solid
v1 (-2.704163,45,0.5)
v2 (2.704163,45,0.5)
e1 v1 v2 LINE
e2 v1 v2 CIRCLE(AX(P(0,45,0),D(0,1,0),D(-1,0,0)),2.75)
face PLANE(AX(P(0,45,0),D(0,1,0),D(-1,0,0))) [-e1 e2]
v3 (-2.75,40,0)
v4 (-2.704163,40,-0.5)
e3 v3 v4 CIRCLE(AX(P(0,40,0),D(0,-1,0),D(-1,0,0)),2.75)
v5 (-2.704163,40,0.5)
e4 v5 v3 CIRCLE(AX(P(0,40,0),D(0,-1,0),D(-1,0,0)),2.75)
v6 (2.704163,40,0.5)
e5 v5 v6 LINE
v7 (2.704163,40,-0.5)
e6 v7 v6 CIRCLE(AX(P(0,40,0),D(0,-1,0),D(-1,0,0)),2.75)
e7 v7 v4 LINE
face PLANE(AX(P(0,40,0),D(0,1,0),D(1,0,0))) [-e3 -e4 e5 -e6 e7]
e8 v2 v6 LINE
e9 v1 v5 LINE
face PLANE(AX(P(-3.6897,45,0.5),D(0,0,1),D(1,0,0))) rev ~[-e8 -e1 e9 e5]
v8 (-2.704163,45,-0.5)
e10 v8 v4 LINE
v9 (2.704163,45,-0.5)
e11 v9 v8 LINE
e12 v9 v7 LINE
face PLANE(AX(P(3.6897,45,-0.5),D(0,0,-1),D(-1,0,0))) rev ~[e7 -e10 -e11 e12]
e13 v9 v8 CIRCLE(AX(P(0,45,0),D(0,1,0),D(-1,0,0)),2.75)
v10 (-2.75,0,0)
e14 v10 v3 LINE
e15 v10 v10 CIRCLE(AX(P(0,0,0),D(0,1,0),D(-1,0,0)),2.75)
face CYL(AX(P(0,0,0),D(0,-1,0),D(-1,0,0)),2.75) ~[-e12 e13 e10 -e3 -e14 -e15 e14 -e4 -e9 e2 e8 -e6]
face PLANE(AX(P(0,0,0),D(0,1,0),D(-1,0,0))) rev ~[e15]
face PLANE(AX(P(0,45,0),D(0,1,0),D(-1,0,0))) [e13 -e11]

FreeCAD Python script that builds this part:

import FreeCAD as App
import Part
import Sketcher
Q = App.Units.Quantity


def add_polygon(sketch, points):
    """Adds a closed chain of lines whose ends are joined by coincident constraints."""
    first, n = sketch.GeometryCount, len(points)
    for a, b in zip(points, points[1:] + points[:1]):
        sketch.addGeometry(Part.LineSegment(App.Vector(*a, 0), App.Vector(*b, 0)), False)
    for i in range(n):
        sketch.addConstraint(Sketcher.Constraint("Coincident", first + i, 2, first + (i + 1) % n, 1))

doc = App.newDocument("Part")
params = doc.addObject("Spreadsheet::Sheet", "Params")
for row, (alias, value) in enumerate([
    ("sketch1_diameter", "5.5 mm"),
    ("pad1_length", "45 mm"),
    ("sketch2_height", "1 mm"),
    ("pocket1_length", "5 mm"),
], start=1):
    params.set(f"A{row}", alias)
    params.set(f"B{row}", "=" + value)
    params.setAlias(f"B{row}", alias)

body = doc.addObject("PartDesign::Body", "Body")

sketch1 = body.newObject("Sketcher::SketchObject", "Sketch")
sketch1.AttachmentSupport = (doc.getObject("XZ_Plane"), [""])
sketch1.MapMode = "FlatFace"
sketch1.addGeometry(Part.Circle(App.Vector(0, 0, 0), App.Vector(0, 0, 1), 2.75), False)
sketch1.addConstraint([
    Sketcher.Constraint("Coincident", 0, 3, -1, 1),
    Sketcher.Constraint("Diameter", 0, Q("5.5 mm")),
])
sketch1.setExpression("Constraints[1]", "Params.sketch1_diameter")
pad1 = body.newObject("PartDesign::Pad", "Pad")
pad1.Profile = sketch1
pad1.setExpression("Length", "Params.pad1_length")
pad1.Reversed = True

sketch2 = body.newObject("Sketcher::SketchObject", "Sketch001")
sketch2.AttachmentSupport = (doc.getObject("XZ_Plane"), [""])
sketch2.MapMode = "FlatFace"
sketch2.AttachmentOffset = App.Placement(App.Vector(0, 0, -45), App.Rotation())
add_polygon(sketch2, [(-3.6897, 0.5), (3.6897, 0.5), (3.6897, -0.5), (-3.6897, -0.5)])
sketch2.addConstraint([
    Sketcher.Constraint("Horizontal", 0),
    Sketcher.Constraint("Vertical", 1),
    Sketcher.Constraint("Horizontal", 2),
    Sketcher.Constraint("Vertical", 3),
    Sketcher.Constraint("Symmetric", 0, 2, 2, 2, -1, 1),
    Sketcher.Constraint("DistanceY", 1, 2, 1, 1, Q("1 mm")),
    Sketcher.Constraint("DistanceX", 0, 1, 0, 2, Q("7.3794 mm")),
])
sketch2.setExpression("Constraints[9]", "Params.sketch2_height")
pocket1 = body.newObject("PartDesign::Pocket", "Pocket")
pocket1.Profile = sketch2
pocket1.setExpression("Length", "Params.pocket1_length")
pocket1.Reversed = True

doc.recompute()
